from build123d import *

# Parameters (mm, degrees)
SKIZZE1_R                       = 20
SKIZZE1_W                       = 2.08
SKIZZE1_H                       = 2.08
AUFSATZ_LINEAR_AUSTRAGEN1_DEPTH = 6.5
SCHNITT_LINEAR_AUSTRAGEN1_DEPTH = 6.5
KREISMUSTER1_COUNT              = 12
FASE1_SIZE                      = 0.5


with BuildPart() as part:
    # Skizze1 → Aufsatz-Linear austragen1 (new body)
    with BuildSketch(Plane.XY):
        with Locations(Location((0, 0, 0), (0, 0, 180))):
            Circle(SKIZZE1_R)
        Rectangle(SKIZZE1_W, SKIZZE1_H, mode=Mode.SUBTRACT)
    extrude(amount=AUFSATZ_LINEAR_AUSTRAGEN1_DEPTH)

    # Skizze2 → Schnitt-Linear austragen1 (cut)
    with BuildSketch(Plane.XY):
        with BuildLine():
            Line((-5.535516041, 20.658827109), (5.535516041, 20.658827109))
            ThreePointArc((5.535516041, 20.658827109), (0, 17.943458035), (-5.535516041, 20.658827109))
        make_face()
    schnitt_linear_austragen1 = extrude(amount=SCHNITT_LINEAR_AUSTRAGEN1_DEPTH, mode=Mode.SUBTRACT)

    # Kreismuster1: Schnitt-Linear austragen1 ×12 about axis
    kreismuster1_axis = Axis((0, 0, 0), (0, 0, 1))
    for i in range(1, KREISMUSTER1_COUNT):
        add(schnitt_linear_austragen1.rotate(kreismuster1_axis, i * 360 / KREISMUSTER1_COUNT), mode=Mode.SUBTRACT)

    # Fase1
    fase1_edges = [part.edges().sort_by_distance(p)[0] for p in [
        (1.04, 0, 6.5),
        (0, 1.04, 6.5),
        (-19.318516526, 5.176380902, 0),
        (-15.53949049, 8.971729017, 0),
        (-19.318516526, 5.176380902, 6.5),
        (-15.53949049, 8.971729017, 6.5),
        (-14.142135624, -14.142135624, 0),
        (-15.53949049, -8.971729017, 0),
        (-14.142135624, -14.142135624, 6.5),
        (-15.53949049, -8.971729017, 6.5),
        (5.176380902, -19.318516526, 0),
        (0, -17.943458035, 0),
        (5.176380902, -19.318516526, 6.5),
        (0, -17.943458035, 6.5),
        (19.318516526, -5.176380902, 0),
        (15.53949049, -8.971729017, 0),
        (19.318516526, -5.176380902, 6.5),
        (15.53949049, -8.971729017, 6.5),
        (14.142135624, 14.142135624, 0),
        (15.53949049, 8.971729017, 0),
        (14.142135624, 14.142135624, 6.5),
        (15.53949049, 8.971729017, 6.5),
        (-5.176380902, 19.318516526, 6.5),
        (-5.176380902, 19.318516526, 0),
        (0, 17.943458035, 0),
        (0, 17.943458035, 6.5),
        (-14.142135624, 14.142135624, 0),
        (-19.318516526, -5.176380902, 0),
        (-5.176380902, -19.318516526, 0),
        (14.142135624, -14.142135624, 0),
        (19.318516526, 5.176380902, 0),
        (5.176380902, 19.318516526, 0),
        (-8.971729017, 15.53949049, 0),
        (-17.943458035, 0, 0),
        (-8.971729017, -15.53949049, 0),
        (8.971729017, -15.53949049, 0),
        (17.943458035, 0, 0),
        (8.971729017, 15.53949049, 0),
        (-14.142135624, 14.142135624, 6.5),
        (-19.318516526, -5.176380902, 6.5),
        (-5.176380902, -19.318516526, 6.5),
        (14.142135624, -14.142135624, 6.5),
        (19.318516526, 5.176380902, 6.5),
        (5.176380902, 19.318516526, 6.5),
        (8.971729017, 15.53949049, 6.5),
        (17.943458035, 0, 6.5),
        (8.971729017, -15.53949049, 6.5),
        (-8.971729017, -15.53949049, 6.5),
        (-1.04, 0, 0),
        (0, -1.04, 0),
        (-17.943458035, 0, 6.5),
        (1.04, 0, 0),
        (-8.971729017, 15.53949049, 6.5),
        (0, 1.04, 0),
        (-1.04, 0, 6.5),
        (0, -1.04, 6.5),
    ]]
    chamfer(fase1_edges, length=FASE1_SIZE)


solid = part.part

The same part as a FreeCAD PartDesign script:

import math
import FreeCAD as App
import Part
import Sketcher
Q = App.Units.Quantity


def edges_at(feature, points):
    """Names of the edges that pass closest to the given points."""
    edges = feature.Shape.Edges
    near = lambda p: min(range(len(edges)), key=lambda i: edges[i].distToShape(Part.Vertex(*p))[0])
    return sorted({f"Edge{near(p) + 1}" for p in points})

doc = App.newDocument("Part")
body = doc.addObject("PartDesign::Body", "Body")

# Sketch on XY plane
sketch1 = body.newObject("Sketcher::SketchObject", "Sketch")
sketch1.AttachmentSupport = (doc.getObject("XY_Plane"), [""])
sketch1.MapMode = "FlatFace"
sketch1.addGeometry(Part.Circle(App.Vector(0, 0, 0), App.Vector(0, 0, 1), 20), False)
sketch1.addGeometry(Part.LineSegment(App.Vector(1.04, -1.04, 0), App.Vector(-1.04, -1.04, 0)), False)
sketch1.addGeometry(Part.LineSegment(App.Vector(-1.04, -1.04, 0), App.Vector(-1.04, 1.04, 0)), False)
sketch1.addGeometry(Part.LineSegment(App.Vector(-1.04, 1.04, 0), App.Vector(1.04, 1.04, 0)), False)
sketch1.addGeometry(Part.LineSegment(App.Vector(1.04, 1.04, 0), App.Vector(1.04, -1.04, 0)), False)
sketch1.addConstraint(Sketcher.Constraint("Coincident", 1, 2, 2, 1))
sketch1.addConstraint(Sketcher.Constraint("Coincident", 2, 2, 3, 1))
sketch1.addConstraint(Sketcher.Constraint("Coincident", 3, 2, 4, 1))
sketch1.addConstraint(Sketcher.Constraint("Coincident", 4, 2, 1, 1))
sketch1.addConstraint(Sketcher.Constraint("Horizontal", 1))
sketch1.addConstraint(Sketcher.Constraint("Vertical", 2))
sketch1.addConstraint(Sketcher.Constraint("Horizontal", 3))
sketch1.addConstraint(Sketcher.Constraint("Vertical", 4))
sketch1.addConstraint(Sketcher.Constraint("Coincident", 0, 3, -1, 1))
sketch1.addConstraint(Sketcher.Constraint("Symmetric", 1, 2, 3, 2, -1, 1))
sketch1.addConstraint(Sketcher.Constraint("Equal", 3, 2))
sketch1.addConstraint(Sketcher.Constraint("Diameter", 0, Q("40 mm")))
sketch1.addConstraint(Sketcher.Constraint("DistanceX", 1, 2, 1, 1, Q("2.08 mm")))
pad1 = body.newObject("PartDesign::Pad", "Pad")
pad1.Profile = sketch1
pad1.Length = 6.5

# Sketch on XY plane
sketch2 = body.newObject("Sketcher::SketchObject", "Sketch001")
sketch2.AttachmentSupport = (doc.getObject("XY_Plane"), [""])
sketch2.MapMode = "FlatFace"
sketch2.addGeometry(Part.LineSegment(App.Vector(5.535516, 20.658827, 0), App.Vector(-5.535516, 20.658827, 0)), False)
sketch2.addGeometry(Part.ArcOfCircle(Part.Circle(App.Vector(0, 24.943458, 0), App.Vector(0, 0, 1), 7), math.radians(-142.259213), math.radians(-37.740787)), False)
sketch2.addConstraint(Sketcher.Constraint("Coincident", 0, 1, 1, 2))
sketch2.addConstraint(Sketcher.Constraint("Coincident", 1, 1, 0, 2))
sketch2.addConstraint(Sketcher.Constraint("Horizontal", 0))
sketch2.addConstraint(Sketcher.Constraint("PointOnObject", 1, 3, -2))
sketch2.addConstraint(Sketcher.Constraint("Radius", 1, Q("7 mm")))
sketch2.addConstraint(Sketcher.Constraint("DistanceX", 0, 2, 0, 1, Q("11.071032 mm")))
sketch2.addConstraint(Sketcher.Constraint("DistanceY", -1, 1, 1, 3, Q("24.943458 mm")))
pocket1 = body.newObject("PartDesign::Pocket", "Pocket")
pocket1.Profile = sketch2
pocket1.Length = 6.5
pocket1.Reversed = True
doc.recompute()

polarpattern = body.newObject("PartDesign::PolarPattern", "PolarPattern")
polarpattern.Originals = [pocket1]
polarpattern.Axis = (doc.getObject("Z_Axis"), [""])
polarpattern.Angle = 360
polarpattern.Occurrences = 12
body.Tip = polarpattern
doc.recompute()

chamfer = body.newObject("PartDesign::Chamfer", "Chamfer")
chamfer.Base = (polarpattern, edges_at(polarpattern, [
    (1.04, 0, 6.5),
    (0, 1.04, 6.5),
    (-19.319, 5.176, 0),
    (-15.539, 8.972, 0),
    (-19.319, 5.176, 6.5),
    (-15.539, 8.972, 6.5),
    (-14.142, -14.142, 0),
    (-15.539, -8.972, 0),
    (-14.142, -14.142, 6.5),
    (-15.539, -8.972, 6.5),
    (5.176, -19.319, 0),
    (0, -17.943, 0),
    (5.176, -19.319, 6.5),
    (0, -17.943, 6.5),
    (19.319, -5.176, 0),
    (15.539, -8.972, 0),
    (19.319, -5.176, 6.5),
    (15.539, -8.972, 6.5),
    (14.142, 14.142, 0),
    (15.539, 8.972, 0),
    (14.142, 14.142, 6.5),
    (15.539, 8.972, 6.5),
    (-5.176, 19.319, 6.5),
    (-5.176, 19.319, 0),
    (0, 17.943, 0),
    (0, 17.943, 6.5),
    (-14.142, 14.142, 0),
    (-19.319, -5.176, 0),
    (-5.176, -19.319, 0),
    (14.142, -14.142, 0),
    (19.319, 5.176, 0),
    (5.176, 19.319, 0),
    (-8.972, 15.539, 0),
    (-17.943, 0, 0),
    (-8.972, -15.539, 0),
    (8.972, -15.539, 0),
    (17.943, 0, 0),
    (8.972, 15.539, 0),
    (-14.142, 14.142, 6.5),
    (-19.319, -5.176, 6.5),
    (-5.176, -19.319, 6.5),
    (14.142, -14.142, 6.5),
    (19.319, 5.176, 6.5),
    (5.176, 19.319, 6.5),
    (8.972, 15.539, 6.5),
    (17.943, 0, 6.5),
    (8.972, -15.539, 6.5),
    (-8.972, -15.539, 6.5),
    (-1.04, 0, 0),
    (0, -1.04, 0),
    (-17.943, 0, 6.5),
    (1.04, 0, 0),
    (-8.972, 15.539, 6.5),
    (0, 1.04, 0),
    (-1.04, 0, 6.5),
    (0, -1.04, 6.5),
]))
chamfer.Size = 0.5

doc.recompute()
